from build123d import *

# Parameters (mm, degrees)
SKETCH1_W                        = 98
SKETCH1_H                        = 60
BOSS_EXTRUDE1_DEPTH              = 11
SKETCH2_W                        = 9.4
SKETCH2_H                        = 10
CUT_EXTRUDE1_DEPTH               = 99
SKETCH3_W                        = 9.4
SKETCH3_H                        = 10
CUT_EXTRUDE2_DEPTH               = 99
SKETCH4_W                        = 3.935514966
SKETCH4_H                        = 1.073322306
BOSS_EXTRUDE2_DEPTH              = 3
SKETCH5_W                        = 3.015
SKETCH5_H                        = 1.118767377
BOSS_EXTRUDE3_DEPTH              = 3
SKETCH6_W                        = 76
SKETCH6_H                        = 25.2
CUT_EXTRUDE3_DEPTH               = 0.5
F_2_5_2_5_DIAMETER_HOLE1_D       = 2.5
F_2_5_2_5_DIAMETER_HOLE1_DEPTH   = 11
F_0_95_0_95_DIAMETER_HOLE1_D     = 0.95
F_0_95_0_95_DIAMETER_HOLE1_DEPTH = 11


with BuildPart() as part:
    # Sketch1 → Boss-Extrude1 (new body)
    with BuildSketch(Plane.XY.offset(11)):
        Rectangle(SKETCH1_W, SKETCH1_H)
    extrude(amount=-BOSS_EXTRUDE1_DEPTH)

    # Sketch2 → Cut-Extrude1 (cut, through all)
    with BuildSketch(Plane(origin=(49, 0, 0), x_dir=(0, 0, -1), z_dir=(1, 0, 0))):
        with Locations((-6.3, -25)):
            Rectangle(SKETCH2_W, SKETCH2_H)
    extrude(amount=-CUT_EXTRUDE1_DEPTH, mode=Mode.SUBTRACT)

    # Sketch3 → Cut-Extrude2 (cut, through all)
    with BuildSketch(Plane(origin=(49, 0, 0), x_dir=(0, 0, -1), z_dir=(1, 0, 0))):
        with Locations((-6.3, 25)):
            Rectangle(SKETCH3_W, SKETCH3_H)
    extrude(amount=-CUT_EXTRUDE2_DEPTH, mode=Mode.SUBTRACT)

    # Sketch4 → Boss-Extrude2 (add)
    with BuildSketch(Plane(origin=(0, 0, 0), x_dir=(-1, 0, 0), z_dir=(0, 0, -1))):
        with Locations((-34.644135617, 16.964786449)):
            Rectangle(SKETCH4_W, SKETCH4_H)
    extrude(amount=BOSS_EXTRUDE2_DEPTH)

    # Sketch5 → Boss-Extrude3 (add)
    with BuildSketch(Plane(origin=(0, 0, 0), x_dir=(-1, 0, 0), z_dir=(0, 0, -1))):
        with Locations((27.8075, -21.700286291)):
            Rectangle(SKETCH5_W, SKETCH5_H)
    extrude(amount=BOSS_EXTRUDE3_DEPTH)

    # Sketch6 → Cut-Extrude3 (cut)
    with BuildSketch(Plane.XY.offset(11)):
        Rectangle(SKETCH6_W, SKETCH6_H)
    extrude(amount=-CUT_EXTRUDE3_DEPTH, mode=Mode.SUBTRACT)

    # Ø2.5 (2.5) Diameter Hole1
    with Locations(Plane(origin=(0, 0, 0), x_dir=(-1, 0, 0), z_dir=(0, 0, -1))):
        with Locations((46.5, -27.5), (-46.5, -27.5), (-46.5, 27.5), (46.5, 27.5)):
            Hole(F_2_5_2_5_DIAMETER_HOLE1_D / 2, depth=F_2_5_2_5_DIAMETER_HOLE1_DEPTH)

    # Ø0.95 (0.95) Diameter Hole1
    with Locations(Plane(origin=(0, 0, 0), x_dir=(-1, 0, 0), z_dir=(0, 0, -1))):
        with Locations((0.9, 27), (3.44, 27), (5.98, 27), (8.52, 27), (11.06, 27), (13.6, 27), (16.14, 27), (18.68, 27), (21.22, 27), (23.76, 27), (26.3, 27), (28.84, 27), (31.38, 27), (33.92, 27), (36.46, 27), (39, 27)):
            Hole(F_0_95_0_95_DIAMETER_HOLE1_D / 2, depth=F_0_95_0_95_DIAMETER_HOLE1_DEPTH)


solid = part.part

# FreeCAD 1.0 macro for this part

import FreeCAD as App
import Part
import Sketcher

V = App.Vector
Q = App.Units.Quantity

doc = App.newDocument("Part")
params = doc.addObject("Spreadsheet::Sheet", "Params")
for row, (alias, value) in enumerate([
    ("sketch1_width", "98 mm"),
    ("sketch1_height", "60 mm"),
    ("pad1_length", "11 mm"),
    ("sketch2_width", "10 mm"),
    ("sketch2_height", "9.4 mm"),
    ("sketch3_width", "10 mm"),
    ("sketch3_height", "9.4 mm"),
    ("pad2_length", "3 mm"),
    ("pad3_length", "3 mm"),
    ("sketch6_width", "76 mm"),
    ("sketch6_height", "25.2 mm"),
    ("pocket3_length", "0.5 mm"),
    ("sketch7_diameter", "2.5 mm"),
    ("hole_diameter", "2.5 mm"),
    ("hole_depth", "11 mm"),
    ("sketch8_diameter", "0.95 mm"),
    ("hole2_diameter", "0.95 mm"),
    ("hole2_depth", "11 mm"),
], start=1):
    params.set(f"A{row}", alias)
    params.set(f"B{row}", "=" + value)
    params.setAlias(f"B{row}", alias)

body = doc.addObject("PartDesign::Body", "Body")

sketch1 = body.newObject("Sketcher::SketchObject", "Sketch")
sketch1.AttachmentSupport = (doc.getObject("XY_Plane"), [""])
sketch1.MapMode = "FlatFace"
sketch1.AttachmentOffset = App.Placement(V(0, 0, 11), App.Rotation())
sketch1.addGeometry([
    Part.LineSegment(V(-49, 30, 0), V(-49, -30, 0)),
    Part.LineSegment(V(-49, -30, 0), V(49, -30, 0)),
    Part.LineSegment(V(49, -30, 0), V(49, 30, 0)),
    Part.LineSegment(V(49, 30, 0), V(-49, 30, 0)),
], False)
sketch1.addConstraint([
    Sketcher.Constraint("Coincident", 0, 2, 1, 1),
    Sketcher.Constraint("Coincident", 1, 2, 2, 1),
    Sketcher.Constraint("Coincident", 2, 2, 3, 1),
    Sketcher.Constraint("Coincident", 3, 2, 0, 1),
    Sketcher.Constraint("Vertical", 0),
    Sketcher.Constraint("Horizontal", 1),
    Sketcher.Constraint("Vertical", 2),
    Sketcher.Constraint("Horizontal", 3),
    Sketcher.Constraint("Symmetric", 0, 2, 2, 2, -1, 1),
    Sketcher.Constraint("DistanceX", 1, 1, 1, 2, Q("98 mm")),
    Sketcher.Constraint("DistanceY", 0, 2, 0, 1, Q("60 mm")),
])
sketch1.setExpression("Constraints[9]", "Params.sketch1_width")
sketch1.setExpression("Constraints[10]", "Params.sketch1_height")
pad1 = body.newObject("PartDesign::Pad", "Pad")
pad1.Profile = sketch1
pad1.setExpression("Length", "Params.pad1_length")
pad1.Reversed = True

sketch2 = body.newObject("Sketcher::SketchObject", "Sketch001")
sketch2.AttachmentSupport = (doc.getObject("YZ_Plane"), [""])
sketch2.MapMode = "FlatFace"
sketch2.AttachmentOffset = App.Placement(V(0, 0, 49), App.Rotation())
sketch2.addGeometry([
    Part.LineSegment(V(-20, 11, 0), V(-30, 11, 0)),
    Part.LineSegment(V(-30, 11, 0), V(-30, 2, 0)),
    Part.LineSegment(V(-30, 2, 0), V(-20, 2, 0)),
    Part.LineSegment(V(-20, 2, 0), V(-20, 11, 0)),
], False)
sketch2.addConstraint([
    Sketcher.Constraint("Coincident", 0, 2, 1, 1),
    Sketcher.Constraint("Coincident", 1, 2, 2, 1),
    Sketcher.Constraint("Coincident", 2, 2, 3, 1),
    Sketcher.Constraint("Coincident", 3, 2, 0, 1),
    Sketcher.Constraint("Horizontal", 0),
    Sketcher.Constraint("Vertical", 1),
    Sketcher.Constraint("Horizontal", 2),
    Sketcher.Constraint("Vertical", 3),
    Sketcher.Constraint("DistanceX", 0, 2, 0, 1, Q("10 mm")),
    Sketcher.Constraint("DistanceY", 1, 2, 1, 1, Q("9.4 mm")),
    Sketcher.Constraint("DistanceX", 0, 2, -1, 1, Q("30 mm")),
    Sketcher.Constraint("DistanceY", -1, 1, 0, 2, Q("11 mm")),
])
sketch2.setExpression("Constraints[8]", "Params.sketch2_width")
sketch2.setExpression("Constraints[9]", "Params.sketch2_height")
pocket1 = body.newObject("PartDesign::Pocket", "Pocket")
pocket1.Profile = sketch2
pocket1.Type = "ThroughAll"

sketch3 = body.newObject("Sketcher::SketchObject", "Sketch002")
sketch3.AttachmentSupport = (doc.getObject("YZ_Plane"), [""])
sketch3.MapMode = "FlatFace"
sketch3.AttachmentOffset = App.Placement(V(0, 0, 49), App.Rotation())
sketch3.addGeometry([
    Part.LineSegment(V(30, 11, 0), V(20, 11, 0)),
    Part.LineSegment(V(20, 11, 0), V(20, 2, 0)),
    Part.LineSegment(V(20, 2, 0), V(30, 2, 0)),
    Part.LineSegment(V(30, 2, 0), V(30, 11, 0)),
], False)
sketch3.addConstraint([
    Sketcher.Constraint("Coincident", 0, 2, 1, 1),
    Sketcher.Constraint("Coincident", 1, 2, 2, 1),
    Sketcher.Constraint("Coincident", 2, 2, 3, 1),
    Sketcher.Constraint("Coincident", 3, 2, 0, 1),
    Sketcher.Constraint("Horizontal", 0),
    Sketcher.Constraint("Vertical", 1),
    Sketcher.Constraint("Horizontal", 2),
    Sketcher.Constraint("Vertical", 3),
    Sketcher.Constraint("DistanceX", 0, 2, 0, 1, Q("10 mm")),
    Sketcher.Constraint("DistanceY", 1, 2, 1, 1, Q("9.4 mm")),
    Sketcher.Constraint("DistanceX", -1, 1, 0, 2, Q("20 mm")),
    Sketcher.Constraint("DistanceY", -1, 1, 0, 2, Q("11 mm")),
])
sketch3.setExpression("Constraints[8]", "Params.sketch3_width")
sketch3.setExpression("Constraints[9]", "Params.sketch3_height")
pocket2 = body.newObject("PartDesign::Pocket", "Pocket001")
pocket2.Profile = sketch3
pocket2.Type = "ThroughAll"

sketch4 = body.newObject("Sketcher::SketchObject", "Sketch003")
sketch4.AttachmentSupport = (doc.getObject("XY_Plane"), [""])
sketch4.MapMode = "FlatFace"
sketch4.addGeometry([
    Part.LineSegment(V(36.6, 17.5, 0), V(36.6, 16.4, 0)),
    Part.LineSegment(V(36.6, 16.4, 0), V(32.7, 16.4, 0)),
    Part.LineSegment(V(32.7, 16.4, 0), V(32.7, 17.5, 0)),
    Part.LineSegment(V(32.7, 17.5, 0), V(36.6, 17.5, 0)),
], False)
sketch4.addConstraint([
    Sketcher.Constraint("Coincident", 0, 2, 1, 1),
    Sketcher.Constraint("Coincident", 1, 2, 2, 1),
    Sketcher.Constraint("Coincident", 2, 2, 3, 1),
    Sketcher.Constraint("Coincident", 3, 2, 0, 1),
    Sketcher.Constraint("Vertical", 0),
    Sketcher.Constraint("Horizontal", 1),
    Sketcher.Constraint("Vertical", 2),
    Sketcher.Constraint("Horizontal", 3),
    Sketcher.Constraint("DistanceX", 1, 2, 1, 1, Q("3.935515 mm")),
    Sketcher.Constraint("DistanceY", 0, 2, 0, 1, Q("1.073322 mm")),
    Sketcher.Constraint("DistanceX", -1, 1, 1, 2, Q("32.676378 mm")),
    Sketcher.Constraint("DistanceY", -1, 1, 0, 2, Q("16.428125 mm")),
])
pad2 = body.newObject("PartDesign::Pad", "Pad001")
pad2.Profile = sketch4
pad2.setExpression("Length", "Params.pad2_length")
pad2.Reversed = True

sketch5 = body.newObject("Sketcher::SketchObject", "Sketch004")
sketch5.AttachmentSupport = (doc.getObject("XY_Plane"), [""])
sketch5.MapMode = "FlatFace"
sketch5.addGeometry([
    Part.LineSegment(V(-26.3, -21.1, 0), V(-26.3, -22.3, 0)),
    Part.LineSegment(V(-26.3, -22.3, 0), V(-29.3, -22.3, 0)),
    Part.LineSegment(V(-29.3, -22.3, 0), V(-29.3, -21.1, 0)),
    Part.LineSegment(V(-29.3, -21.1, 0), V(-26.3, -21.1, 0)),
], False)
sketch5.addConstraint([
    Sketcher.Constraint("Coincident", 0, 2, 1, 1),
    Sketcher.Constraint("Coincident", 1, 2, 2, 1),
    Sketcher.Constraint("Coincident", 2, 2, 3, 1),
    Sketcher.Constraint("Coincident", 3, 2, 0, 1),
    Sketcher.Constraint("Vertical", 0),
    Sketcher.Constraint("Horizontal", 1),
    Sketcher.Constraint("Vertical", 2),
    Sketcher.Constraint("Horizontal", 3),
    Sketcher.Constraint("DistanceX", 0, 2, -1, 1, Q("26.3 mm")),
    Sketcher.Constraint("DistanceX", 1, 2, 1, 1, Q("3.015 mm")),
    Sketcher.Constraint("DistanceY", 0, 2, 0, 1, Q("1.118767 mm")),
    Sketcher.Constraint("DistanceY", 0, 2, -1, 1, Q("22.25967 mm")),
])
pad3 = body.newObject("PartDesign::Pad", "Pad002")
pad3.Profile = sketch5
pad3.setExpression("Length", "Params.pad3_length")
pad3.Reversed = True

sketch6 = body.newObject("Sketcher::SketchObject", "Sketch005")
sketch6.AttachmentSupport = (doc.getObject("XY_Plane"), [""])
sketch6.MapMode = "FlatFace"
sketch6.AttachmentOffset = App.Placement(V(0, 0, 11), App.Rotation())
sketch6.addGeometry([
    Part.LineSegment(V(-38, 13, 0), V(-38, -13, 0)),
    Part.LineSegment(V(-38, -13, 0), V(38, -13, 0)),
    Part.LineSegment(V(38, -13, 0), V(38, 13, 0)),
    Part.LineSegment(V(38, 13, 0), V(-38, 13, 0)),
], False)
sketch6.addConstraint([
    Sketcher.Constraint("Coincident", 0, 2, 1, 1),
    Sketcher.Constraint("Coincident", 1, 2, 2, 1),
    Sketcher.Constraint("Coincident", 2, 2, 3, 1),
    Sketcher.Constraint("Coincident", 3, 2, 0, 1),
    Sketcher.Constraint("Vertical", 0),
    Sketcher.Constraint("Horizontal", 1),
    Sketcher.Constraint("Vertical", 2),
    Sketcher.Constraint("Horizontal", 3),
    Sketcher.Constraint("Symmetric", 0, 2, 2, 2, -1, 1),
    Sketcher.Constraint("DistanceX", 1, 1, 1, 2, Q("76 mm")),
    Sketcher.Constraint("DistanceY", 0, 2, 0, 1, Q("25.2 mm")),
])
sketch6.setExpression("Constraints[9]", "Params.sketch6_width")
sketch6.setExpression("Constraints[10]", "Params.sketch6_height")
pocket3 = body.newObject("PartDesign::Pocket", "Pocket002")
pocket3.Profile = sketch6
pocket3.setExpression("Length", "Params.pocket3_length")

sketch7 = body.newObject("Sketcher::SketchObject", "Sketch006")
sketch7.AttachmentSupport = (doc.getObject("XY_Plane"), [""])
sketch7.MapMode = "FlatFace"
sketch7.addGeometry([
    Part.Circle(V(-46.5, -27.5, 0), V(0, 0, 1), 1.2),
    Part.Circle(V(46.5, -27.5, 0), V(0, 0, 1), 1.2),
    Part.Circle(V(46.5, 27.5, 0), V(0, 0, 1), 1.2),
    Part.Circle(V(-46.5, 27.5, 0), V(0, 0, 1), 1.2),
], False)
sketch7.addConstraint([
    Sketcher.Constraint("Equal", 0, 1),
    Sketcher.Constraint("Equal", 1, 2),
    Sketcher.Constraint("Equal", 2, 3),
    Sketcher.Constraint("Symmetric", 0, 3, 2, 3, -1, 1),
    Sketcher.Constraint("Symmetric", 1, 3, 3, 3, -1, 1),
    Sketcher.Constraint("Symmetric", 0, 3, 1, 3, -2),
    Sketcher.Constraint("Diameter", 0, Q("2.5 mm")),
    Sketcher.Constraint("DistanceX", 0, 3, 1, 3, Q("93 mm")),
    Sketcher.Constraint("DistanceY", 1, 3, 2, 3, Q("55 mm")),
])
sketch7.setExpression("Constraints[6]", "Params.sketch7_diameter")
doc.recompute()
hole = body.newObject("PartDesign::Hole", "Hole")
hole.Profile = sketch7
hole.ThreadType = "None"
hole.setExpression("Diameter", "Params.hole_diameter")
hole.DepthType = "Dimension"
hole.setExpression("Depth", "Params.hole_depth")
hole.DrillPoint = "Flat"
hole.Reversed = True

sketch8 = body.newObject("Sketcher::SketchObject", "Sketch007")
sketch8.AttachmentSupport = (doc.getObject("XY_Plane"), [""])
sketch8.MapMode = "FlatFace"
sketch8.addGeometry([
    Part.Circle(V(-0.9, 27, 0), V(0, 0, 1), 0.47),
    Part.Circle(V(-3.44, 27, 0), V(0, 0, 1), 0.47),
    Part.Circle(V(-5.98, 27, 0), V(0, 0, 1), 0.47),
    Part.Circle(V(-8.52, 27, 0), V(0, 0, 1), 0.47),
    Part.Circle(V(-11.06, 27, 0), V(0, 0, 1), 0.47),
    Part.Circle(V(-13.6, 27, 0), V(0, 0, 1), 0.47),
    Part.Circle(V(-16.14, 27, 0), V(0, 0, 1), 0.47),
    Part.Circle(V(-18.68, 27, 0), V(0, 0, 1), 0.47),
    Part.Circle(V(-21.22, 27, 0), V(0, 0, 1), 0.47),
    Part.Circle(V(-23.76, 27, 0), V(0, 0, 1), 0.47),
    Part.Circle(V(-26.3, 27, 0), V(0, 0, 1), 0.47),
    Part.Circle(V(-28.84, 27, 0), V(0, 0, 1), 0.47),
    Part.Circle(V(-31.38, 27, 0), V(0, 0, 1), 0.47),
    Part.Circle(V(-33.92, 27, 0), V(0, 0, 1), 0.47),
    Part.Circle(V(-36.46, 27, 0), V(0, 0, 1), 0.47),
    Part.Circle(V(-39, 27, 0), V(0, 0, 1), 0.47),
], False)
sketch8.addConstraint([
    Sketcher.Constraint("Equal", 0, 1),
    Sketcher.Constraint("Equal", 1, 2),
    Sketcher.Constraint("Equal", 2, 3),
    Sketcher.Constraint("Equal", 3, 4),
    Sketcher.Constraint("Equal", 4, 5),
    Sketcher.Constraint("Equal", 5, 6),
    Sketcher.Constraint("Equal", 6, 7),
    Sketcher.Constraint("Equal", 7, 8),
    Sketcher.Constraint("Equal", 8, 9),
    Sketcher.Constraint("Equal", 9, 10),
    Sketcher.Constraint("Equal", 10, 11),
    Sketcher.Constraint("Equal", 11, 12),
    Sketcher.Constraint("Equal", 12, 13),
    Sketcher.Constraint("Equal", 13, 14),
    Sketcher.Constraint("Equal", 14, 15),
    Sketcher.Constraint("Horizontal", 0, 3, 1, 3),
    Sketcher.Constraint("Horizontal", 1, 3, 2, 3),
    Sketcher.Constraint("Horizontal", 2, 3, 3, 3),
    Sketcher.Constraint("Horizontal", 3, 3, 4, 3),
    Sketcher.Constraint("Horizontal", 4, 3, 5, 3),
    Sketcher.Constraint("Horizontal", 5, 3, 6, 3),
    Sketcher.Constraint("Horizontal", 6, 3, 7, 3),
    Sketcher.Constraint("Horizontal", 7, 3, 8, 3),
    Sketcher.Constraint("Horizontal", 8, 3, 9, 3),
    Sketcher.Constraint("Horizontal", 9, 3, 10, 3),
    Sketcher.Constraint("Horizontal", 10, 3, 11, 3),
    Sketcher.Constraint("Horizontal", 11, 3, 12, 3),
    Sketcher.Constraint("Horizontal", 12, 3, 13, 3),
    Sketcher.Constraint("Horizontal", 13, 3, 14, 3),
    Sketcher.Constraint("Horizontal", 14, 3, 15, 3),
    Sketcher.Constraint("Diameter", 0, Q("0.95 mm")),
    Sketcher.Constraint("DistanceY", -1, 1, 0, 3, Q("27 mm")),
    Sketcher.Constraint("DistanceX", 15, 3, -1, 1, Q("39 mm")),
    Sketcher.Constraint("DistanceX", 0, 3, -1, 1, Q("0.9 mm")),
    Sketcher.Constraint("DistanceX", 5, 3, -1, 1, Q("13.6 mm")),
    Sketcher.Constraint("DistanceX", 10, 3, -1, 1, Q("26.3 mm")),
    Sketcher.Constraint("DistanceX", 6, 3, 1, 3, Q("12.7 mm")),
    Sketcher.Constraint("DistanceX", 7, 3, 2, 3, Q("12.7 mm")),
    Sketcher.Constraint("DistanceX", 8, 3, 3, 3, Q("12.7 mm")),
    Sketcher.Constraint("DistanceX", 9, 3, 4, 3, Q("12.7 mm")),
    Sketcher.Constraint("DistanceX", 11, 3, 6, 3, Q("12.7 mm")),
    Sketcher.Constraint("DistanceX", 12, 3, 7, 3, Q("12.7 mm")),
    Sketcher.Constraint("DistanceX", 13, 3, 8, 3, Q("12.7 mm")),
    Sketcher.Constraint("DistanceX", 14, 3, 9, 3, Q("12.7 mm")),
    Sketcher.Constraint("DistanceX", 1, 3, -1, 1, Q("3.44 mm")),
    Sketcher.Constraint("DistanceX", 2, 3, -1, 1, Q("5.98 mm")),
    Sketcher.Constraint("DistanceX", 3, 3, -1, 1, Q("8.52 mm")),
    Sketcher.Constraint("DistanceX", 4, 3, -1, 1, Q("11.06 mm")),
])
sketch8.setExpression("Constraints[30]", "Params.sketch8_diameter")
doc.recompute()
hole2 = body.newObject("PartDesign::Hole", "Hole001")
hole2.Profile = sketch8
hole2.ThreadType = "None"
hole2.setExpression("Diameter", "Params.hole2_diameter")
hole2.DepthType = "Dimension"
hole2.setExpression("Depth", "Params.hole2_depth")
hole2.DrillPoint = "Flat"
hole2.Reversed = True

doc.recompute()
